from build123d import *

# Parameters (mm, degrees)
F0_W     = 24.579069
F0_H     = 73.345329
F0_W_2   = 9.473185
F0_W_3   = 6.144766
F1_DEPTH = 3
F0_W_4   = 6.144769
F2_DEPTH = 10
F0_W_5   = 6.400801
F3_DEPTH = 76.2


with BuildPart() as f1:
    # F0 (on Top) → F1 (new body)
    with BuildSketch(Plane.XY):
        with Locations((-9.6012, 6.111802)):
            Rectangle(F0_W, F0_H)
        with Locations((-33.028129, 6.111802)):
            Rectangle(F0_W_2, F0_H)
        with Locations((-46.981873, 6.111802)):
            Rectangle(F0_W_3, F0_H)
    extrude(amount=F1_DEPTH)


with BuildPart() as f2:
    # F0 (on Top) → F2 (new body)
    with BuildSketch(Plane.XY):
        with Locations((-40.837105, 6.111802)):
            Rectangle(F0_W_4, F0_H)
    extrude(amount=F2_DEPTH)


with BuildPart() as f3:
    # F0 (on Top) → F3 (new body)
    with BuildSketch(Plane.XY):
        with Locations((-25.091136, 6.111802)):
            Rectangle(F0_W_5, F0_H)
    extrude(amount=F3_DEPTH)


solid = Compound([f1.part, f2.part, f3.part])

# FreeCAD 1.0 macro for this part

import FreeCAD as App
import Part
import Sketcher
from FreeCAD import Vector

doc = App.newDocument("Part")
body = doc.addObject("PartDesign::Body", "Body")
body.AllowCompound = True

sketch1 = doc.addObject("Sketcher::SketchObject", "Sketch")
body.addObject(sketch1)
sketch1.AttachmentSupport = (doc.XY_Plane, [""])
sketch1.MapMode = "FlatFace"
sketch1.addGeometry([
    Part.LineSegment(Vector(-22, 43, 0), Vector(-22, -31, 0)),
    Part.LineSegment(Vector(-22, -31, 0), Vector(3, -31, 0)),
    Part.LineSegment(Vector(3, -31, 0), Vector(3, 43, 0)),
    Part.LineSegment(Vector(3, 43, 0), Vector(-22, 43, 0)),
    Part.LineSegment(Vector(-38, 43, 0), Vector(-38, -31, 0)),
    Part.LineSegment(Vector(-38, -31, 0), Vector(-28, -31, 0)),
    Part.LineSegment(Vector(-28, -31, 0), Vector(-28, 43, 0)),
    Part.LineSegment(Vector(-28, 43, 0), Vector(-38, 43, 0)),
    Part.LineSegment(Vector(-50, 43, 0), Vector(-50, -31, 0)),
    Part.LineSegment(Vector(-50, -31, 0), Vector(-44, -31, 0)),
    Part.LineSegment(Vector(-44, -31, 0), Vector(-44, 43, 0)),
    Part.LineSegment(Vector(-44, 43, 0), Vector(-50, 43, 0)),
], False)
sketch1.addConstraint([
    Sketcher.Constraint("Coincident", 0, 2, 1, 1),
    Sketcher.Constraint("Coincident", 1, 2, 2, 1),
    Sketcher.Constraint("Coincident", 2, 2, 3, 1),
    Sketcher.Constraint("Coincident", 3, 2, 0, 1),
    Sketcher.Constraint("Coincident", 4, 2, 5, 1),
    Sketcher.Constraint("Coincident", 5, 2, 6, 1),
    Sketcher.Constraint("Coincident", 6, 2, 7, 1),
    Sketcher.Constraint("Coincident", 7, 2, 4, 1),
    Sketcher.Constraint("Coincident", 8, 2, 9, 1),
    Sketcher.Constraint("Coincident", 9, 2, 10, 1),
    Sketcher.Constraint("Coincident", 10, 2, 11, 1),
    Sketcher.Constraint("Coincident", 11, 2, 8, 1),
    Sketcher.Constraint("Vertical", 0),
    Sketcher.Constraint("Horizontal", 1),
    Sketcher.Constraint("Vertical", 2),
    Sketcher.Constraint("Horizontal", 3),
    Sketcher.Constraint("Vertical", 4),
    Sketcher.Constraint("Horizontal", 5),
    Sketcher.Constraint("Vertical", 6),
    Sketcher.Constraint("Horizontal", 7),
    Sketcher.Constraint("Vertical", 8),
    Sketcher.Constraint("Horizontal", 9),
    Sketcher.Constraint("Vertical", 10),
    Sketcher.Constraint("Horizontal", 11),
    Sketcher.Constraint("Horizontal", 1, 2, 4, 2),
    Sketcher.Constraint("Horizontal", 3, 2, 6, 2),
    Sketcher.Constraint("Horizontal", 5, 2, 8, 2),
    Sketcher.Constraint("Horizontal", 7, 2, 10, 2),
    Sketcher.Constraint("DistanceX", 1, 1, 1, 2, 24.579069),
    Sketcher.Constraint("DistanceY", 0, 2, 0, 1, 73.345329),
    Sketcher.Constraint("DistanceX", 5, 2, 0, 2, 6.400802),
    Sketcher.Constraint("DistanceX", 5, 1, 5, 2, 9.473185),
    Sketcher.Constraint("DistanceX", 9, 1, 9, 2, 6.144766),
    Sketcher.Constraint("DistanceX", 4, 2, -1, 1, 37.764722),
    Sketcher.Constraint("DistanceX", 9, 2, -1, 1, 43.90949),
    Sketcher.Constraint("DistanceY", 0, 2, -1, 1, 30.560862),
])
pad1 = doc.addObject("PartDesign::Pad", "Pad")
body.addObject(pad1)
pad1.Profile = sketch1
pad1.Length = 3
body2 = doc.addObject("PartDesign::Body", "Body001")

sketch2 = doc.addObject("Sketcher::SketchObject", "Sketch001")
body2.addObject(sketch2)
sketch2.AttachmentSupport = (doc.getObject("XY_Plane001"), [""])
sketch2.MapMode = "FlatFace"
sketch2.addGeometry([
    Part.LineSegment(Vector(-44, 43, 0), Vector(-44, -31, 0)),
    Part.LineSegment(Vector(-44, -31, 0), Vector(-38, -31, 0)),
    Part.LineSegment(Vector(-38, -31, 0), Vector(-38, 43, 0)),
    Part.LineSegment(Vector(-38, 43, 0), Vector(-44, 43, 0)),
], False)
sketch2.addConstraint([
    Sketcher.Constraint("Coincident", 0, 2, 1, 1),
    Sketcher.Constraint("Coincident", 1, 2, 2, 1),
    Sketcher.Constraint("Coincident", 2, 2, 3, 1),
    Sketcher.Constraint("Coincident", 3, 2, 0, 1),
    Sketcher.Constraint("Vertical", 0),
    Sketcher.Constraint("Horizontal", 1),
    Sketcher.Constraint("Vertical", 2),
    Sketcher.Constraint("Horizontal", 3),
    Sketcher.Constraint("DistanceX", 1, 1, 1, 2, 6.144769),
    Sketcher.Constraint("DistanceY", 0, 2, 0, 1, 73.345329),
    Sketcher.Constraint("DistanceX", 0, 2, -1, 1, 43.909489),
    Sketcher.Constraint("DistanceY", 0, 2, -1, 1, 30.560862),
])
pad2 = doc.addObject("PartDesign::Pad", "Pad001")
body2.addObject(pad2)
pad2.Profile = sketch2
pad2.Length = 10
body3 = doc.addObject("PartDesign::Body", "Body002")

sketch3 = doc.addObject("Sketcher::SketchObject", "Sketch002")
body3.addObject(sketch3)
sketch3.AttachmentSupport = (doc.getObject("XY_Plane002"), [""])
sketch3.MapMode = "FlatFace"
sketch3.addGeometry([
    Part.LineSegment(Vector(-28, 43, 0), Vector(-28, -31, 0)),
    Part.LineSegment(Vector(-28, -31, 0), Vector(-22, -31, 0)),
    Part.LineSegment(Vector(-22, -31, 0), Vector(-22, 43, 0)),
    Part.LineSegment(Vector(-22, 43, 0), Vector(-28, 43, 0)),
], False)
sketch3.addConstraint([
    Sketcher.Constraint("Coincident", 0, 2, 1, 1),
    Sketcher.Constraint("Coincident", 1, 2, 2, 1),
    Sketcher.Constraint("Coincident", 2, 2, 3, 1),
    Sketcher.Constraint("Coincident", 3, 2, 0, 1),
    Sketcher.Constraint("Vertical", 0),
    Sketcher.Constraint("Horizontal", 1),
    Sketcher.Constraint("Vertical", 2),
    Sketcher.Constraint("Horizontal", 3),
    Sketcher.Constraint("DistanceX", 1, 1, 1, 2, 6.400801),
    Sketcher.Constraint("DistanceY", 0, 2, 0, 1, 73.345329),
    Sketcher.Constraint("DistanceX", 0, 2, -1, 1, 28.291536),
    Sketcher.Constraint("DistanceY", 0, 2, -1, 1, 30.560862),
])
pad3 = doc.addObject("PartDesign::Pad", "Pad002")
body3.addObject(pad3)
pad3.Profile = sketch3
pad3.Length = 76.2

doc.recompute()
